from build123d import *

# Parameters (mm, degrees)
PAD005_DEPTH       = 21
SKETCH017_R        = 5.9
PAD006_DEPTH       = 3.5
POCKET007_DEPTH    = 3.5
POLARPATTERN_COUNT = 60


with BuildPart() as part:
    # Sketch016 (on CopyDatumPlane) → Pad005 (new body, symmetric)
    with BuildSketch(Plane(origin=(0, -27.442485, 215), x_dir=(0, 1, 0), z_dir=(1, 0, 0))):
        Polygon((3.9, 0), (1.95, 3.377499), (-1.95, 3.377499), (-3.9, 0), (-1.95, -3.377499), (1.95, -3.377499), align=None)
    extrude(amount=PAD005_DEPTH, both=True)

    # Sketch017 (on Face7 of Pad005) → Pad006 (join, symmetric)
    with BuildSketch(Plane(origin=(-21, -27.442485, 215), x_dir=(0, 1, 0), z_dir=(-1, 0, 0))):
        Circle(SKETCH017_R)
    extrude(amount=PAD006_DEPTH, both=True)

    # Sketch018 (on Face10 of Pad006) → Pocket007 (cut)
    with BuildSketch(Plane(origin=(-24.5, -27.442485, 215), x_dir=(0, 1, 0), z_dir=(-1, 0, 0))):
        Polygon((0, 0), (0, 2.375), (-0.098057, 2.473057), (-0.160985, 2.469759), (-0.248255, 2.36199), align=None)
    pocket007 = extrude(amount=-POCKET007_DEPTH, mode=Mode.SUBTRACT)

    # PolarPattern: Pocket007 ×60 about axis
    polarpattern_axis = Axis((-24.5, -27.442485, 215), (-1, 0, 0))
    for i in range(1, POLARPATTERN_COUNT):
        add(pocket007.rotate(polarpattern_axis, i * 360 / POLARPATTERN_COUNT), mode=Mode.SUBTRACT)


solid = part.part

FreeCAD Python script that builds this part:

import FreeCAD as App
import Part
import Sketcher
from FreeCAD import Vector
Q = App.Units.Quantity

doc = App.newDocument("Part")
body = doc.addObject("PartDesign::Body", "Body")

# Sketch on YZ plane
sketch1 = body.newObject("Sketcher::SketchObject", "Sketch")
sketch1.AttachmentSupport = (doc.getObject("YZ_Plane"), [""])
sketch1.MapMode = "FlatFace"
sketch1.addGeometry([
    Part.LineSegment(Vector(-23.542485, 215, 0), Vector(-25.492485, 218.377499, 0)),  # 0
    Part.LineSegment(Vector(-25.492485, 218.377499, 0), Vector(-29.392485, 218.377499, 0)),  # 1
    Part.LineSegment(Vector(-29.392485, 218.377499, 0), Vector(-31.342485, 215, 0)),  # 2
    Part.LineSegment(Vector(-31.342485, 215, 0), Vector(-29.392485, 211.622501, 0)),  # 3
    Part.LineSegment(Vector(-29.392485, 211.622501, 0), Vector(-25.492485, 211.622501, 0)),  # 4
    Part.LineSegment(Vector(-25.492485, 211.622501, 0), Vector(-23.542485, 215, 0)),  # 5
], False)
sketch1.addConstraint([
    Sketcher.Constraint("Coincident", 0, 2, 1, 1),
    Sketcher.Constraint("Coincident", 1, 2, 2, 1),
    Sketcher.Constraint("Coincident", 2, 2, 3, 1),
    Sketcher.Constraint("Coincident", 3, 2, 4, 1),
    Sketcher.Constraint("Coincident", 4, 2, 5, 1),
    Sketcher.Constraint("Coincident", 5, 2, 0, 1),
    Sketcher.Constraint("Horizontal", 1),
    Sketcher.Constraint("Horizontal", 4),
    Sketcher.Constraint("Parallel", 0, 3),
    Sketcher.Constraint("Parallel", 2, 5),
    Sketcher.Constraint("Horizontal", 2, 2, 5, 2),
    Sketcher.Constraint("Vertical", 1, 2, 3, 2),
    Sketcher.Constraint("Vertical", 0, 2, 4, 2),
    Sketcher.Constraint("Angle", 0, Q("120.000001 deg")),
    Sketcher.Constraint("DistanceX", 1, 2, 1, 1, 3.9),
    Sketcher.Constraint("DistanceY", -1, 1, 2, 2, 215.0),
    Sketcher.Constraint("Distance", 0, 3.9),
    Sketcher.Constraint("DistanceX", 0, 2, -1, 1, 25.492485),
])
pad1 = body.newObject("PartDesign::Pad", "Pad")
pad1.Profile = sketch1
pad1.Length = 42
pad1.Midplane = True

# Sketch on YZ plane
sketch2 = body.newObject("Sketcher::SketchObject", "Sketch001")
sketch2.AttachmentSupport = (doc.getObject("YZ_Plane"), [""])
sketch2.MapMode = "FlatFace"
sketch2.AttachmentOffset = App.Placement(Vector(0, 0, -21), App.Rotation())
sketch2.addGeometry(Part.Circle(Vector(-27.442485, 215, 0), Vector(0, 0, 1), 5.9), False)
sketch2.addConstraint([
    Sketcher.Constraint("Diameter", 0, 11.8),
    Sketcher.Constraint("DistanceY", -1, 1, 0, 3, 215.0),
    Sketcher.Constraint("DistanceX", 0, 3, -1, 1, 27.442485),
])
pad2 = body.newObject("PartDesign::Pad", "Pad001")
pad2.Profile = sketch2
pad2.Length = 7
pad2.Midplane = True

# Sketch on YZ plane
sketch3 = body.newObject("Sketcher::SketchObject", "Sketch002")
sketch3.AttachmentSupport = (doc.getObject("YZ_Plane"), [""])
sketch3.MapMode = "FlatFace"
sketch3.AttachmentOffset = App.Placement(Vector(0, 0, -24.5), App.Rotation())
sketch3.addGeometry([
    Part.LineSegment(Vector(-27.442485, 215, 0), Vector(-27.442485, 212.625, 0)),  # 0
    Part.LineSegment(Vector(-27.442485, 212.625, 0), Vector(-27.540542, 212.526943, 0)),  # 1
    Part.LineSegment(Vector(-27.540542, 212.526943, 0), Vector(-27.60347, 212.530241, 0)),  # 2
    Part.LineSegment(Vector(-27.60347, 212.530241, 0), Vector(-27.69074, 212.63801, 0)),  # 3
    Part.LineSegment(Vector(-27.69074, 212.63801, 0), Vector(-27.442485, 215, 0)),  # 4
], False)
sketch3.addConstraint([
    Sketcher.Constraint("Coincident", 0, 2, 1, 1),
    Sketcher.Constraint("Coincident", 1, 2, 2, 1),
    Sketcher.Constraint("Coincident", 2, 2, 3, 1),
    Sketcher.Constraint("Coincident", 3, 2, 4, 1),
    Sketcher.Constraint("Coincident", 4, 2, 0, 1),
    Sketcher.Constraint("Vertical", 0),
    Sketcher.Constraint("Equal", 1, 3),
    Sketcher.Constraint("Angle", 1, Q("-135 deg")),
    Sketcher.Constraint("Angle", 4, Q("84.000004 deg")),
    Sketcher.Constraint("DistanceY", -1, 1, 4, 2, 215.0),
    Sketcher.Constraint("DistanceY", 0, 2, 0, 1, 2.375),
    Sketcher.Constraint("Distance", 4, 2.375),
    Sketcher.Constraint("DistanceY", 1, 2, 2, 2, 0.003298),
    Sketcher.Constraint("DistanceX", 3, 2, 1, 2, 0.150198),
    Sketcher.Constraint("DistanceX", 1, 2, -1, 1, 27.540542),
])
pocket1 = body.newObject("PartDesign::Pocket", "Pocket")
pocket1.Profile = sketch3
pocket1.Length = 3.5
pocket1.Reversed = True
doc.recompute()

datumline = body.newObject("PartDesign::Line", "DatumLine")
datumline.Placement = App.Placement(Vector(0, -27.442485, 215), App.Rotation(Vector(0, 0, 1), Vector(-1, 0, 0)))
polarpattern = body.newObject("PartDesign::PolarPattern", "PolarPattern")
polarpattern.Originals = [pocket1]
polarpattern.Axis = (datumline, [""])
polarpattern.Angle = 360
polarpattern.Occurrences = 60
body.Tip = polarpattern

doc.recompute()
